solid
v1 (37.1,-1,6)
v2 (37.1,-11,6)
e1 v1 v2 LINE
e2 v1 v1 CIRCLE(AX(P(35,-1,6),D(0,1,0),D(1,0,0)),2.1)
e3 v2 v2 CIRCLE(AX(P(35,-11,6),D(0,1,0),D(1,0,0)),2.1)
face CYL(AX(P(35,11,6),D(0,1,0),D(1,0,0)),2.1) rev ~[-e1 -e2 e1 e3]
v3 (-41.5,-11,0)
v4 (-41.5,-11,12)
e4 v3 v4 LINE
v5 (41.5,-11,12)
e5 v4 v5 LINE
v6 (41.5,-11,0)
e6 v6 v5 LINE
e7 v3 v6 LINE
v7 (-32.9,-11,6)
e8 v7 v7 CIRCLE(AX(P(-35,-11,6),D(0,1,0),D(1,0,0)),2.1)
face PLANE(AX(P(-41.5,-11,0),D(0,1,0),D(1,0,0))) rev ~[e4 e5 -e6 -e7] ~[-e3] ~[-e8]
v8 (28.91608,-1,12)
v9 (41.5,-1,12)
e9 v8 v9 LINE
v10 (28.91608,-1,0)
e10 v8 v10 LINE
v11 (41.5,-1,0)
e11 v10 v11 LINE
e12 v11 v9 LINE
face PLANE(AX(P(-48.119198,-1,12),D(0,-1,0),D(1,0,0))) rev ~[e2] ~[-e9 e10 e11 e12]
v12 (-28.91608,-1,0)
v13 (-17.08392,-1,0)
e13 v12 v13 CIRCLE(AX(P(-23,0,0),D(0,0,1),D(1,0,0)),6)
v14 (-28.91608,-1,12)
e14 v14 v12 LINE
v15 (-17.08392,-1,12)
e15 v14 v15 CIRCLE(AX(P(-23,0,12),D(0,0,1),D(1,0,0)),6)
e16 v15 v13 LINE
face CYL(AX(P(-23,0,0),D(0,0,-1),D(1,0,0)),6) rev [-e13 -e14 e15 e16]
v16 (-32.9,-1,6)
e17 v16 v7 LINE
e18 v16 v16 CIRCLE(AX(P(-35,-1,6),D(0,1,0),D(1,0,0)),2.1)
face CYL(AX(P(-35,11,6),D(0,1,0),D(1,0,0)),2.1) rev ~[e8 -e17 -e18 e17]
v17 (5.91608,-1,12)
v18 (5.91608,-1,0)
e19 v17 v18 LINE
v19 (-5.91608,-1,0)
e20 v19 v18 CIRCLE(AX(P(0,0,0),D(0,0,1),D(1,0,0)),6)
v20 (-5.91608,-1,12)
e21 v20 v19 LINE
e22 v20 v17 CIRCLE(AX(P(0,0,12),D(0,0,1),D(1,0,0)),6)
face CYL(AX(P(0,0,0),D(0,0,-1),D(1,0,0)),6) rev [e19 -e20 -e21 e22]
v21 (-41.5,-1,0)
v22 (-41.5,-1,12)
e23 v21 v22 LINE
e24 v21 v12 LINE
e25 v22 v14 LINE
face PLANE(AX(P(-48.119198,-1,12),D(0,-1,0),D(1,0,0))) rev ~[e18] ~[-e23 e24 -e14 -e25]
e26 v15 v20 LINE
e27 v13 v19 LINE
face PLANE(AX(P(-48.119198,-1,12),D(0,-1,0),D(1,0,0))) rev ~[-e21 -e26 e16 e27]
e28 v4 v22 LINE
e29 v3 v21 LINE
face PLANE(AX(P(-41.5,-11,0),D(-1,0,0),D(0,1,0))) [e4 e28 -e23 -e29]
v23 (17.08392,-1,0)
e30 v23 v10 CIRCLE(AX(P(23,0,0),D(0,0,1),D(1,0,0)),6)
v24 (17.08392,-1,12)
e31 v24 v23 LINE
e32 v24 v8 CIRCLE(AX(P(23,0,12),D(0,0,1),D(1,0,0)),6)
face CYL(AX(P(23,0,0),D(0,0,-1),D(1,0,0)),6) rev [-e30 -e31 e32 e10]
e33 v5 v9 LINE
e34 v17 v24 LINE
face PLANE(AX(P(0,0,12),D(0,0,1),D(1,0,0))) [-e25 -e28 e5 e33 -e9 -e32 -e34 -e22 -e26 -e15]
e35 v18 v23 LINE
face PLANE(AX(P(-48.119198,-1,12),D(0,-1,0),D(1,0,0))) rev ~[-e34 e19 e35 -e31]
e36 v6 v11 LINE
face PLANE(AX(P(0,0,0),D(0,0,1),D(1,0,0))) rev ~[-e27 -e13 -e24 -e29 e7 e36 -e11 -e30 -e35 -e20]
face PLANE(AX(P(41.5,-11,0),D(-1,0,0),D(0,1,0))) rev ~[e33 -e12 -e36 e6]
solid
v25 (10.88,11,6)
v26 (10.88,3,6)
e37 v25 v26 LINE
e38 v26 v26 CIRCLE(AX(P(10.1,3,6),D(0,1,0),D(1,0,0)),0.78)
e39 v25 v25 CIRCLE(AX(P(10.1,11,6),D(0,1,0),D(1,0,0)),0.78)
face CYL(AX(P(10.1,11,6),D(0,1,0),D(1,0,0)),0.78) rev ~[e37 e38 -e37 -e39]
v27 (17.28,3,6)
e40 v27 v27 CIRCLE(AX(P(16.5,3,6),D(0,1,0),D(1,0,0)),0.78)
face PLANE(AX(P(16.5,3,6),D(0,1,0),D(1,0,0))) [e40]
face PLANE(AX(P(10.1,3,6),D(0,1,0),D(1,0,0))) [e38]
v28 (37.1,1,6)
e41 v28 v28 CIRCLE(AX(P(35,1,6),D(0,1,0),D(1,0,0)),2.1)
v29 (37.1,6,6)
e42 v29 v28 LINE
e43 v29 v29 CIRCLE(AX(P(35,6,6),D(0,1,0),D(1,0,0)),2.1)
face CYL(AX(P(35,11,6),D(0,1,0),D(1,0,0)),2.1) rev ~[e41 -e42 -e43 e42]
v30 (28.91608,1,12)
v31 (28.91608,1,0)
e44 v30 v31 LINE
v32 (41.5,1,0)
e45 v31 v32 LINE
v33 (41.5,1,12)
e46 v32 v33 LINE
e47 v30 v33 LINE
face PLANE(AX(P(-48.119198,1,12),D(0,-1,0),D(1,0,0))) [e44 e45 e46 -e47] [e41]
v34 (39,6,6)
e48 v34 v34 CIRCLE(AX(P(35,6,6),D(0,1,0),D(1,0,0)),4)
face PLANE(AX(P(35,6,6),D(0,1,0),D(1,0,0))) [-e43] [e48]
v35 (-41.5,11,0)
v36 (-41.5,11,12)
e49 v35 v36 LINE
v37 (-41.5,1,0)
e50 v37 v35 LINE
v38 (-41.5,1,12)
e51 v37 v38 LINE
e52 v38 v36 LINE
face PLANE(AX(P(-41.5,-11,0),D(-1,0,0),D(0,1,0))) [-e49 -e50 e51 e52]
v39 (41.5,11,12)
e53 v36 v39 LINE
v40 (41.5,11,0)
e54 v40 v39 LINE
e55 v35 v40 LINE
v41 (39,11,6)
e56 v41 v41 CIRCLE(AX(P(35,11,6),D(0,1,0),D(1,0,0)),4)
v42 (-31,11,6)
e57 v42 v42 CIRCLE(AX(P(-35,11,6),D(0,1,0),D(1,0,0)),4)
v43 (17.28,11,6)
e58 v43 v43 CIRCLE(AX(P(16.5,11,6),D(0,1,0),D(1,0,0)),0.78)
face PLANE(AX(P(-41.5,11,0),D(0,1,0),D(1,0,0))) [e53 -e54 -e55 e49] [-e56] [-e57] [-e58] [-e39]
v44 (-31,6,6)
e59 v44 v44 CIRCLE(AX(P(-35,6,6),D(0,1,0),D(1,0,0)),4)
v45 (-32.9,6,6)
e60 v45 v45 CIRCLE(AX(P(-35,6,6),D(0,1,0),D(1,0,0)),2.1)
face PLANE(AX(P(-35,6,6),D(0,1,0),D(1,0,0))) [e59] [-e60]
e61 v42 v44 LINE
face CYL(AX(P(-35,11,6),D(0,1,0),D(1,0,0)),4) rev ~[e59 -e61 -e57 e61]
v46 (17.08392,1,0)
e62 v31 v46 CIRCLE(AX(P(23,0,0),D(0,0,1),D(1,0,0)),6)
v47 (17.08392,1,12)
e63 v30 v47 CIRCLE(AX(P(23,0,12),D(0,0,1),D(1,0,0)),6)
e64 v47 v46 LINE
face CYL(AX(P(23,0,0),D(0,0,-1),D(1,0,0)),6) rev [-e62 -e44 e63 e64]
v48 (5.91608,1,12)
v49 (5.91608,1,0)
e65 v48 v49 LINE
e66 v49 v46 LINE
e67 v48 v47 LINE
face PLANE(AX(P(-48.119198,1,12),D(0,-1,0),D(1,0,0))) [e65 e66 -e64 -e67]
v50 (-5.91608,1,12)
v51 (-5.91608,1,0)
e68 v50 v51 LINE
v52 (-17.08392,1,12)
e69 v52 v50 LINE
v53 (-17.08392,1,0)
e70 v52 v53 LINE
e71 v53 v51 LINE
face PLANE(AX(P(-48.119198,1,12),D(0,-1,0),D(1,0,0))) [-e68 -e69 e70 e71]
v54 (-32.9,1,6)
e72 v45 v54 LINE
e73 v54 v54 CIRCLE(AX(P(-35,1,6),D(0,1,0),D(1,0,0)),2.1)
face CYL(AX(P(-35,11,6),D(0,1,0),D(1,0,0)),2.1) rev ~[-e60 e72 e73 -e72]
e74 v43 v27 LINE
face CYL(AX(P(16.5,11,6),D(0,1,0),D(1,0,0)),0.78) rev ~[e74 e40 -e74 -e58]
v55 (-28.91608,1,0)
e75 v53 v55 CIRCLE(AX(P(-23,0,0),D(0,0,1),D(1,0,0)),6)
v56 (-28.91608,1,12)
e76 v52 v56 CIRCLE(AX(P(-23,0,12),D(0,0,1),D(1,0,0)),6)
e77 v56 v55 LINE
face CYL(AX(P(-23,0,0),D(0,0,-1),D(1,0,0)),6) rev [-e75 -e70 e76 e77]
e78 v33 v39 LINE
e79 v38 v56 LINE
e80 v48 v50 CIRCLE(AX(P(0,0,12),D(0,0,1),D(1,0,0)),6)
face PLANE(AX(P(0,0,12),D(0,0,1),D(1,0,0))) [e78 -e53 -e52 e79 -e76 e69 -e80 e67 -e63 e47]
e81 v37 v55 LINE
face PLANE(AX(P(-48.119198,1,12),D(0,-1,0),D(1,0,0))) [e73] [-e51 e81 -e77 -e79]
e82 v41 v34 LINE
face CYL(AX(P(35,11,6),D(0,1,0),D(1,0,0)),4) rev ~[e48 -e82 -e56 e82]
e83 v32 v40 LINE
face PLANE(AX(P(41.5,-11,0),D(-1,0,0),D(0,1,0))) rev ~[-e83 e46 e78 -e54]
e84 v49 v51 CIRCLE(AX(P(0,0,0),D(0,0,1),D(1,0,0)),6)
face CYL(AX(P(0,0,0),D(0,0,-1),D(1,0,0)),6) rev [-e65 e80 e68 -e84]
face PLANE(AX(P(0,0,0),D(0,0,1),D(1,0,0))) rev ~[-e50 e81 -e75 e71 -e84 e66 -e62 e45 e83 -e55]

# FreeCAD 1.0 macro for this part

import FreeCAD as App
import Part
import Sketcher
Q = App.Units.Quantity


def add_polygon(sketch, points):
    """Adds a closed chain of lines whose ends are joined by coincident constraints."""
    first, n = sketch.GeometryCount, len(points)
    for a, b in zip(points, points[1:] + points[:1]):
        sketch.addGeometry(Part.LineSegment(App.Vector(*a, 0), App.Vector(*b, 0)), False)
    for i in range(n):
        sketch.addConstraint(Sketcher.Constraint("Coincident", first + i, 2, first + (i + 1) % n, 1))

doc = App.newDocument("Part")
body = doc.addObject("PartDesign::Body", "Body")
body.AllowCompound = True

sketch1 = body.newObject("Sketcher::SketchObject", "Sketch")
sketch1.AttachmentSupport = (doc.getObject("XY_Plane"), [""])
sketch1.MapMode = "FlatFace"
add_polygon(sketch1, [(-42, 11), (-42, -11), (42, -11), (42, 11)])
sketch1.addGeometry(Part.Circle(App.Vector(-23, 0, 0), App.Vector(0, 0, 1), 6), False)
sketch1.addGeometry(Part.Circle(App.Vector(0, 0, 0), App.Vector(0, 0, 1), 6), False)
sketch1.addGeometry(Part.Circle(App.Vector(23, 0, 0), App.Vector(0, 0, 1), 6), False)
sketch1.addConstraint(Sketcher.Constraint("Vertical", 0))
sketch1.addConstraint(Sketcher.Constraint("Horizontal", 1))
sketch1.addConstraint(Sketcher.Constraint("Vertical", 2))
sketch1.addConstraint(Sketcher.Constraint("Horizontal", 3))
sketch1.addConstraint(Sketcher.Constraint("Coincident", 5, 3, -1, 1))
sketch1.addConstraint(Sketcher.Constraint("Equal", 4, 5))
sketch1.addConstraint(Sketcher.Constraint("Equal", 5, 6))
sketch1.addConstraint(Sketcher.Constraint("Symmetric", 4, 3, 6, 3, -1, 1))
sketch1.addConstraint(Sketcher.Constraint("Symmetric", 0, 2, 2, 2, -1, 1))
sketch1.addConstraint(Sketcher.Constraint("PointOnObject", 4, 3, -1))
sketch1.addConstraint(Sketcher.Constraint("Diameter", 4, Q("12 mm")))
sketch1.addConstraint(Sketcher.Constraint("DistanceX", 1, 1, 1, 2, Q("83 mm")))
sketch1.addConstraint(Sketcher.Constraint("DistanceY", 0, 2, 0, 1, Q("22 mm")))
sketch1.addConstraint(Sketcher.Constraint("DistanceX", 4, 3, -1, 1, Q("23 mm")))
pad1 = body.newObject("PartDesign::Pad", "Pad")
pad1.Profile = sketch1
pad1.Length = 12

sketch2 = body.newObject("Sketcher::SketchObject", "Sketch001")
sketch2.AttachmentSupport = (doc.getObject("XZ_Plane"), [""])
sketch2.MapMode = "FlatFace"
sketch2.AttachmentOffset = App.Placement(App.Vector(0, 0, -11), App.Rotation())
sketch2.addGeometry(Part.Circle(App.Vector(-35, 6, 0), App.Vector(0, 0, 1), 2.1), False)
sketch2.addGeometry(Part.Circle(App.Vector(35, 6, 0), App.Vector(0, 0, 1), 2.1), False)
sketch2.addConstraint(Sketcher.Constraint("Equal", 0, 1))
sketch2.addConstraint(Sketcher.Constraint("Symmetric", 0, 3, 1, 3, -2))
sketch2.addConstraint(Sketcher.Constraint("Diameter", 0, Q("4.2 mm")))
sketch2.addConstraint(Sketcher.Constraint("DistanceX", 0, 3, -1, 1, Q("35 mm")))
sketch2.addConstraint(Sketcher.Constraint("DistanceY", -1, 1, 0, 3, Q("6 mm")))
pocket1 = body.newObject("PartDesign::Pocket", "Pocket")
pocket1.Profile = sketch2
pocket1.Type = "ThroughAll"
pocket1.Reversed = True

sketch3 = body.newObject("Sketcher::SketchObject", "Sketch002")
sketch3.AttachmentSupport = (doc.getObject("XZ_Plane"), [""])
sketch3.MapMode = "FlatFace"
sketch3.AttachmentOffset = App.Placement(App.Vector(0, 0, -11), App.Rotation())
sketch3.addGeometry(Part.Circle(App.Vector(-35, 6, 0), App.Vector(0, 0, 1), 4), False)
sketch3.addGeometry(Part.Circle(App.Vector(35, 6, 0), App.Vector(0, 0, 1), 4), False)
sketch3.addConstraint(Sketcher.Constraint("Equal", 0, 1))
sketch3.addConstraint(Sketcher.Constraint("Symmetric", 0, 3, 1, 3, -2))
sketch3.addConstraint(Sketcher.Constraint("Diameter", 0, Q("8 mm")))
sketch3.addConstraint(Sketcher.Constraint("DistanceX", 0, 3, -1, 1, Q("35 mm")))
sketch3.addConstraint(Sketcher.Constraint("DistanceY", -1, 1, 0, 3, Q("6 mm")))
pocket2 = body.newObject("PartDesign::Pocket", "Pocket001")
pocket2.Profile = sketch3
pocket2.Length = 5
pocket2.Reversed = True

sketch4 = body.newObject("Sketcher::SketchObject", "Sketch003")
sketch4.AttachmentSupport = (doc.getObject("XY_Plane"), [""])
sketch4.MapMode = "FlatFace"
sketch4.AttachmentOffset = App.Placement(App.Vector(0, 0, 12), App.Rotation())
add_polygon(sketch4, [(-48.1, 1), (-48.1, -1), (48.1, -1), (48.1, 1)])
sketch4.addConstraint(Sketcher.Constraint("Vertical", 0))
sketch4.addConstraint(Sketcher.Constraint("Horizontal", 1))
sketch4.addConstraint(Sketcher.Constraint("Vertical", 2))
sketch4.addConstraint(Sketcher.Constraint("Horizontal", 3))
sketch4.addConstraint(Sketcher.Constraint("Symmetric", 0, 2, 2, 2, -1, 1))
sketch4.addConstraint(Sketcher.Constraint("DistanceY", 0, 2, 0, 1, Q("2 mm")))
sketch4.addConstraint(Sketcher.Constraint("DistanceX", 0, 2, -1, 1, Q("48.119198 mm")))
pocket3 = body.newObject("PartDesign::Pocket", "Pocket002")
pocket3.Profile = sketch4
pocket3.Type = "ThroughAll"

sketch5 = body.newObject("Sketcher::SketchObject", "Sketch004")
sketch5.AttachmentSupport = (doc.getObject("XZ_Plane"), [""])
sketch5.MapMode = "FlatFace"
sketch5.AttachmentOffset = App.Placement(App.Vector(0, 0, -11), App.Rotation())
sketch5.addGeometry(Part.Circle(App.Vector(16.5, 6, 0), App.Vector(0, 0, 1), 0.8), False)
sketch5.addGeometry(Part.Circle(App.Vector(10.1, 6, 0), App.Vector(0, 0, 1), 0.8), False)
sketch5.addConstraint(Sketcher.Constraint("Equal", 0, 1))
sketch5.addConstraint(Sketcher.Constraint("Horizontal", 0, 3, 1, 3))
sketch5.addConstraint(Sketcher.Constraint("Diameter", 0, Q("1.56 mm")))
sketch5.addConstraint(Sketcher.Constraint("DistanceY", -1, 1, 0, 3, Q("6 mm")))
sketch5.addConstraint(Sketcher.Constraint("DistanceX", -1, 1, 0, 3, Q("16.5 mm")))
sketch5.addConstraint(Sketcher.Constraint("DistanceX", -1, 1, 1, 3, Q("10.1 mm")))
pocket4 = body.newObject("PartDesign::Pocket", "Pocket003")
pocket4.Profile = sketch5
pocket4.Length = 8
pocket4.Reversed = True

doc.recompute()
